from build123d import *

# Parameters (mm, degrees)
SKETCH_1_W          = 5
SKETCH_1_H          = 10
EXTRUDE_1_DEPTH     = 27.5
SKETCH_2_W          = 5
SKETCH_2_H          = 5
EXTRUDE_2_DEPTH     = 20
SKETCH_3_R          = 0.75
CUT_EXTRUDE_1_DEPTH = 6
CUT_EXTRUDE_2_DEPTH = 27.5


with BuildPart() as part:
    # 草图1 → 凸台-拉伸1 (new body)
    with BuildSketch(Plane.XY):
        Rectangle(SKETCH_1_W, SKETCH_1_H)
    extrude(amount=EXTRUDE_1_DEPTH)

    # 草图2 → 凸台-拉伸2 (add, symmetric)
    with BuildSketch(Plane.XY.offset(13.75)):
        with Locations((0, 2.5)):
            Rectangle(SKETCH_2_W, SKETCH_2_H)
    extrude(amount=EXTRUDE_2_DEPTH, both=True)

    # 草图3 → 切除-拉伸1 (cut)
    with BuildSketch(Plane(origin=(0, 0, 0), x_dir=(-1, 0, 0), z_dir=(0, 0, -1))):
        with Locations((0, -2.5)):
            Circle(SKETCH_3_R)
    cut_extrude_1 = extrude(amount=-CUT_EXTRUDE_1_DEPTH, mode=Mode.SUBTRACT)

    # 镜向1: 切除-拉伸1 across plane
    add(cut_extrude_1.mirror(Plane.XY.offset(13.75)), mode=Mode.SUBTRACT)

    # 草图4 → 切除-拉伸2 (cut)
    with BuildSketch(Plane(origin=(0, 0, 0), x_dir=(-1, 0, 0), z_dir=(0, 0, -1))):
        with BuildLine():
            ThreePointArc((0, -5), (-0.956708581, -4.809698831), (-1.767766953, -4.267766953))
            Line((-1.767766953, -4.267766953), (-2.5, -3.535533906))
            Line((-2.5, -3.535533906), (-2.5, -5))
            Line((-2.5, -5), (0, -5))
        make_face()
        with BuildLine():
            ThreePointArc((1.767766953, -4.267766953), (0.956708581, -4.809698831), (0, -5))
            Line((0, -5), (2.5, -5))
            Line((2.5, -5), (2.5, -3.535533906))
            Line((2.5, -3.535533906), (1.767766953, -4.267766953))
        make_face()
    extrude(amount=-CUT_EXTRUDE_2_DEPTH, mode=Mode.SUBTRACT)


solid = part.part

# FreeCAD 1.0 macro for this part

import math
import FreeCAD as App
import Part
import Sketcher

V = App.Vector


def add_polygon(sketch, points):
    """Adds a closed chain of lines whose ends are joined by coincident constraints."""
    first, n = sketch.GeometryCount, len(points)
    for a, b in zip(points, points[1:] + points[:1]):
        sketch.addGeometry(Part.LineSegment(App.Vector(*a, 0), App.Vector(*b, 0)), False)
    for i in range(n):
        sketch.addConstraint(Sketcher.Constraint("Coincident", first + i, 2, first + (i + 1) % n, 1))

doc = App.newDocument("Part")
params = doc.addObject("Spreadsheet::Sheet", "Params")
for row, (alias, value) in enumerate([
    ("sketch1_width", "5 mm"),
    ("sketch1_height", "10 mm"),
    ("pad1_length", "27.5 mm"),
    ("sketch2_width", "5 mm"),
    ("pad2_length", "40 mm"),
    ("sketch3_diameter", "1.5 mm"),
    ("pocket1_length", "6 mm"),
    ("sketch4_radius", "2.5 mm"),
    ("sketch4_width", "2.5 mm"),
    ("pocket2_length", "27.5 mm"),
], start=1):
    params.set(f"A{row}", alias)
    params.set(f"B{row}", "=" + value)
    params.setAlias(f"B{row}", alias)

body = doc.addObject("PartDesign::Body", "Body")

# Sketch on XY plane
sketch1 = body.newObject("Sketcher::SketchObject", "Sketch")
sketch1.AttachmentSupport = (doc.getObject("XY_Plane"), [""])
sketch1.MapMode = "FlatFace"
add_polygon(sketch1, [(-2, 5), (-2, -5), (2, -5), (2, 5)])  # lines 0-3
sketch1.addConstraint([
    Sketcher.Constraint("Vertical", 0),
    Sketcher.Constraint("Horizontal", 1),
    Sketcher.Constraint("Vertical", 2),
    Sketcher.Constraint("Horizontal", 3),
    Sketcher.Constraint("Symmetric", 0, 2, 2, 2, -1, 1),
    Sketcher.Constraint("DistanceX", 1, 1, 1, 2, 5.0),
    Sketcher.Constraint("DistanceY", 0, 2, 0, 1, 10.0),
])
sketch1.setExpression("Constraints[9]", "Params.sketch1_width")
sketch1.setExpression("Constraints[10]", "Params.sketch1_height")
pad1 = body.newObject("PartDesign::Pad", "Pad")
pad1.Profile = sketch1
pad1.setExpression("Length", "Params.pad1_length")

# Sketch on XY plane
sketch2 = body.newObject("Sketcher::SketchObject", "Sketch001")
sketch2.AttachmentSupport = (doc.getObject("XY_Plane"), [""])
sketch2.MapMode = "FlatFace"
sketch2.AttachmentOffset = App.Placement(V(0, 0, 13.75), App.Rotation())
add_polygon(sketch2, [(-2, 5), (-2, 0), (2, 0), (2, 5)])  # lines 0-3
sketch2.addConstraint([
    Sketcher.Constraint("Vertical", 0),
    Sketcher.Constraint("Horizontal", 1),
    Sketcher.Constraint("Vertical", 2),
    Sketcher.Constraint("Horizontal", 3),
    Sketcher.Constraint("Symmetric", 0, 2, 1, 2, -1, 1),
    Sketcher.Constraint("Equal", 3, 0),
    Sketcher.Constraint("DistanceX", 1, 1, 1, 2, 5.0),
])
sketch2.setExpression("Constraints[10]", "Params.sketch2_width")
pad2 = body.newObject("PartDesign::Pad", "Pad001")
pad2.Profile = sketch2
pad2.setExpression("Length", "Params.pad2_length")
pad2.Midplane = True

# Sketch on XY plane
sketch3 = body.newObject("Sketcher::SketchObject", "Sketch002")
sketch3.AttachmentSupport = (doc.getObject("XY_Plane"), [""])
sketch3.MapMode = "FlatFace"
sketch3.addGeometry(Part.Circle(V(0, -2.5, 0), V(0, 0, 1), 0.8), False)
sketch3.addConstraint([
    Sketcher.Constraint("PointOnObject", 0, 3, -2),
    Sketcher.Constraint("Diameter", 0, 1.5),
    Sketcher.Constraint("DistanceY", 0, 3, -1, 1, 2.5),
])
sketch3.setExpression("Constraints[1]", "Params.sketch3_diameter")
pocket1 = body.newObject("PartDesign::Pocket", "Pocket")
pocket1.Profile = sketch3
pocket1.setExpression("Length", "Params.pocket1_length")
pocket1.Reversed = True
doc.recompute()

datumplane = body.newObject("PartDesign::Plane", "DatumPlane")
datumplane.AttachmentSupport = (doc.getObject("XY_Plane"), [""])
datumplane.MapMode = "FlatFace"
datumplane.AttachmentOffset = App.Placement(V(0, 0, 13.75), App.Rotation())
mirrored = body.newObject("PartDesign::Mirrored", "Mirrored")
mirrored.Originals = [pocket1]
mirrored.MirrorPlane = (datumplane, [""])
body.Tip = mirrored

# Sketch on XY plane
sketch4 = body.newObject("Sketcher::SketchObject", "Sketch003")
sketch4.AttachmentSupport = (doc.getObject("XY_Plane"), [""])
sketch4.MapMode = "FlatFace"
sketch4.addGeometry([
    Part.ArcOfCircle(Part.Circle(V(0, -2.5, 0), V(0, 0, 1), 2.5), math.radians(-90), math.radians(-45)),  # 0
    Part.LineSegment(V(1.8, -4.3, 0), V(2.5, -3.5, 0)),  # 1
    Part.LineSegment(V(2.5, -3.5, 0), V(2.5, -5, 0)),  # 2
    Part.LineSegment(V(2.5, -5, 0), V(0, -5, 0)),  # 3
    Part.ArcOfCircle(Part.Circle(V(0, -2.5, 0), V(0, 0, 1), 2.5), math.radians(-135), math.radians(-90)),  # 4
    Part.LineSegment(V(0, -5, 0), V(-2.5, -5, 0)),  # 5
    Part.LineSegment(V(-2.5, -5, 0), V(-2.5, -3.5, 0)),  # 6
    Part.LineSegment(V(-2.5, -3.5, 0), V(-1.8, -4.3, 0)),  # 7
], False)
sketch4.addConstraint([
    Sketcher.Constraint("Tangent", 0, 2, 1, 1),
    Sketcher.Constraint("Coincident", 1, 2, 2, 1),
    Sketcher.Constraint("Coincident", 2, 2, 3, 1),
    Sketcher.Constraint("Tangent", 3, 2, 0, 1),
    Sketcher.Constraint("Tangent", 4, 2, 5, 1),
    Sketcher.Constraint("Coincident", 5, 2, 6, 1),
    Sketcher.Constraint("Coincident", 6, 2, 7, 1),
    Sketcher.Constraint("Tangent", 7, 2, 4, 1),
    Sketcher.Constraint("Vertical", 2),
    Sketcher.Constraint("Horizontal", 3),
    Sketcher.Constraint("Horizontal", 5),
    Sketcher.Constraint("Vertical", 6),
    Sketcher.Constraint("Coincident", 4, 3, 0, 3),
    Sketcher.Constraint("Equal", 0, 4),
    Sketcher.Constraint("Symmetric", 1, 2, 6, 2, -2),
    Sketcher.Constraint("PointOnObject", 0, 3, -2),
    Sketcher.Constraint("Perpendicular", 1, 7),
    Sketcher.Constraint("Radius", 0, 2.5),
    Sketcher.Constraint("DistanceX", 3, 2, 3, 1, 2.5),
    Sketcher.Constraint("DistanceY", 2, 2, -1, 1, 5.0),
])
sketch4.setExpression("Constraints[17]", "Params.sketch4_radius")
sketch4.setExpression("Constraints[18]", "Params.sketch4_width")
pocket2 = body.newObject("PartDesign::Pocket", "Pocket001")
pocket2.Profile = sketch4
pocket2.setExpression("Length", "Params.pocket2_length")
pocket2.Reversed = True

doc.recompute()
